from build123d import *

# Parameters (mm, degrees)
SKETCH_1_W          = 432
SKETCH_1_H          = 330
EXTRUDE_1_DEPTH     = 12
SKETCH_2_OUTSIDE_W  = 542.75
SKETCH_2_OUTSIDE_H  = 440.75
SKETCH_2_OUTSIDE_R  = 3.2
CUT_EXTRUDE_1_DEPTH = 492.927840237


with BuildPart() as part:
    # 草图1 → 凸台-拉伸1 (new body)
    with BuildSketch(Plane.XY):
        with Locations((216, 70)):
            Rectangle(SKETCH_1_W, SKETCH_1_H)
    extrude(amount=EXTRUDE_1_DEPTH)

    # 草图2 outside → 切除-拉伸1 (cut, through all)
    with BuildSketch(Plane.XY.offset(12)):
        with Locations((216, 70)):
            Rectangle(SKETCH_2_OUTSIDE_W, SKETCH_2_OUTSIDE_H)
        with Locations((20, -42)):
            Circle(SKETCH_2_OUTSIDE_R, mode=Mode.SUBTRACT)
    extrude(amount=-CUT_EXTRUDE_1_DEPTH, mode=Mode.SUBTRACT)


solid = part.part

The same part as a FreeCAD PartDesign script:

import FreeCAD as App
import Part
import Sketcher
from FreeCAD import Vector
Q = App.Units.Quantity

doc = App.newDocument("Part")
body = doc.addObject("PartDesign::Body", "Body")

sketch1 = body.newObject("Sketcher::SketchObject", "Sketch")
sketch1.AttachmentSupport = (doc.getObject("XY_Plane"), [""])
sketch1.MapMode = "FlatFace"
sketch1.addGeometry([
    Part.LineSegment(Vector(0, 235, 0), Vector(0, -95, 0)),
    Part.LineSegment(Vector(0, -95, 0), Vector(432, -95, 0)),
    Part.LineSegment(Vector(432, -95, 0), Vector(432, 235, 0)),
    Part.LineSegment(Vector(432, 235, 0), Vector(0, 235, 0)),
], False)
sketch1.addConstraint([
    Sketcher.Constraint("Coincident", 0, 2, 1, 1),
    Sketcher.Constraint("Coincident", 1, 2, 2, 1),
    Sketcher.Constraint("Coincident", 2, 2, 3, 1),
    Sketcher.Constraint("Coincident", 3, 2, 0, 1),
    Sketcher.Constraint("Vertical", 0),
    Sketcher.Constraint("Horizontal", 1),
    Sketcher.Constraint("Vertical", 2),
    Sketcher.Constraint("Horizontal", 3),
    Sketcher.Constraint("PointOnObject", 0, 2, -2),
    Sketcher.Constraint("DistanceX", 1, 1, 1, 2, Q("432 mm")),
    Sketcher.Constraint("DistanceY", 0, 2, 0, 1, Q("330 mm")),
    Sketcher.Constraint("DistanceY", 0, 2, -1, 1, Q("95 mm")),
])
pad1 = body.newObject("PartDesign::Pad", "Pad")
pad1.Profile = sketch1
pad1.Length = 12

sketch2 = body.newObject("Sketcher::SketchObject", "Sketch001")
sketch2.AttachmentSupport = (doc.getObject("XY_Plane"), [""])
sketch2.MapMode = "FlatFace"
sketch2.AttachmentOffset = App.Placement(Vector(0, 0, 12), App.Rotation())
sketch2.addGeometry([
    Part.LineSegment(Vector(-55.375, 290.375, 0), Vector(-55.375, -150.375, 0)),
    Part.LineSegment(Vector(-55.375, -150.375, 0), Vector(487.375, -150.375, 0)),
    Part.LineSegment(Vector(487.375, -150.375, 0), Vector(487.375, 290.375, 0)),
    Part.LineSegment(Vector(487.375, 290.375, 0), Vector(-55.375, 290.375, 0)),
    Part.Circle(Vector(20, -42, 0), Vector(0, 0, 1), 3.2),
], False)
sketch2.addConstraint([
    Sketcher.Constraint("Coincident", 0, 2, 1, 1),
    Sketcher.Constraint("Coincident", 1, 2, 2, 1),
    Sketcher.Constraint("Coincident", 2, 2, 3, 1),
    Sketcher.Constraint("Coincident", 3, 2, 0, 1),
    Sketcher.Constraint("Vertical", 0),
    Sketcher.Constraint("Horizontal", 1),
    Sketcher.Constraint("Vertical", 2),
    Sketcher.Constraint("Horizontal", 3),
    Sketcher.Constraint("Diameter", 4, Q("6.4 mm")),
    Sketcher.Constraint("DistanceX", -1, 1, 4, 3, Q("20 mm")),
    Sketcher.Constraint("DistanceY", 4, 3, -1, 1, Q("42 mm")),
    Sketcher.Constraint("DistanceX", 1, 1, 1, 2, Q("542.75 mm")),
    Sketcher.Constraint("DistanceY", 0, 2, 0, 1, Q("440.75 mm")),
    Sketcher.Constraint("DistanceX", 0, 2, -1, 1, Q("55.375 mm")),
    Sketcher.Constraint("DistanceY", 0, 2, -1, 1, Q("150.375 mm")),
])
pocket1 = body.newObject("PartDesign::Pocket", "Pocket")
pocket1.Profile = sketch2
pocket1.Type = "ThroughAll"

doc.recompute()
